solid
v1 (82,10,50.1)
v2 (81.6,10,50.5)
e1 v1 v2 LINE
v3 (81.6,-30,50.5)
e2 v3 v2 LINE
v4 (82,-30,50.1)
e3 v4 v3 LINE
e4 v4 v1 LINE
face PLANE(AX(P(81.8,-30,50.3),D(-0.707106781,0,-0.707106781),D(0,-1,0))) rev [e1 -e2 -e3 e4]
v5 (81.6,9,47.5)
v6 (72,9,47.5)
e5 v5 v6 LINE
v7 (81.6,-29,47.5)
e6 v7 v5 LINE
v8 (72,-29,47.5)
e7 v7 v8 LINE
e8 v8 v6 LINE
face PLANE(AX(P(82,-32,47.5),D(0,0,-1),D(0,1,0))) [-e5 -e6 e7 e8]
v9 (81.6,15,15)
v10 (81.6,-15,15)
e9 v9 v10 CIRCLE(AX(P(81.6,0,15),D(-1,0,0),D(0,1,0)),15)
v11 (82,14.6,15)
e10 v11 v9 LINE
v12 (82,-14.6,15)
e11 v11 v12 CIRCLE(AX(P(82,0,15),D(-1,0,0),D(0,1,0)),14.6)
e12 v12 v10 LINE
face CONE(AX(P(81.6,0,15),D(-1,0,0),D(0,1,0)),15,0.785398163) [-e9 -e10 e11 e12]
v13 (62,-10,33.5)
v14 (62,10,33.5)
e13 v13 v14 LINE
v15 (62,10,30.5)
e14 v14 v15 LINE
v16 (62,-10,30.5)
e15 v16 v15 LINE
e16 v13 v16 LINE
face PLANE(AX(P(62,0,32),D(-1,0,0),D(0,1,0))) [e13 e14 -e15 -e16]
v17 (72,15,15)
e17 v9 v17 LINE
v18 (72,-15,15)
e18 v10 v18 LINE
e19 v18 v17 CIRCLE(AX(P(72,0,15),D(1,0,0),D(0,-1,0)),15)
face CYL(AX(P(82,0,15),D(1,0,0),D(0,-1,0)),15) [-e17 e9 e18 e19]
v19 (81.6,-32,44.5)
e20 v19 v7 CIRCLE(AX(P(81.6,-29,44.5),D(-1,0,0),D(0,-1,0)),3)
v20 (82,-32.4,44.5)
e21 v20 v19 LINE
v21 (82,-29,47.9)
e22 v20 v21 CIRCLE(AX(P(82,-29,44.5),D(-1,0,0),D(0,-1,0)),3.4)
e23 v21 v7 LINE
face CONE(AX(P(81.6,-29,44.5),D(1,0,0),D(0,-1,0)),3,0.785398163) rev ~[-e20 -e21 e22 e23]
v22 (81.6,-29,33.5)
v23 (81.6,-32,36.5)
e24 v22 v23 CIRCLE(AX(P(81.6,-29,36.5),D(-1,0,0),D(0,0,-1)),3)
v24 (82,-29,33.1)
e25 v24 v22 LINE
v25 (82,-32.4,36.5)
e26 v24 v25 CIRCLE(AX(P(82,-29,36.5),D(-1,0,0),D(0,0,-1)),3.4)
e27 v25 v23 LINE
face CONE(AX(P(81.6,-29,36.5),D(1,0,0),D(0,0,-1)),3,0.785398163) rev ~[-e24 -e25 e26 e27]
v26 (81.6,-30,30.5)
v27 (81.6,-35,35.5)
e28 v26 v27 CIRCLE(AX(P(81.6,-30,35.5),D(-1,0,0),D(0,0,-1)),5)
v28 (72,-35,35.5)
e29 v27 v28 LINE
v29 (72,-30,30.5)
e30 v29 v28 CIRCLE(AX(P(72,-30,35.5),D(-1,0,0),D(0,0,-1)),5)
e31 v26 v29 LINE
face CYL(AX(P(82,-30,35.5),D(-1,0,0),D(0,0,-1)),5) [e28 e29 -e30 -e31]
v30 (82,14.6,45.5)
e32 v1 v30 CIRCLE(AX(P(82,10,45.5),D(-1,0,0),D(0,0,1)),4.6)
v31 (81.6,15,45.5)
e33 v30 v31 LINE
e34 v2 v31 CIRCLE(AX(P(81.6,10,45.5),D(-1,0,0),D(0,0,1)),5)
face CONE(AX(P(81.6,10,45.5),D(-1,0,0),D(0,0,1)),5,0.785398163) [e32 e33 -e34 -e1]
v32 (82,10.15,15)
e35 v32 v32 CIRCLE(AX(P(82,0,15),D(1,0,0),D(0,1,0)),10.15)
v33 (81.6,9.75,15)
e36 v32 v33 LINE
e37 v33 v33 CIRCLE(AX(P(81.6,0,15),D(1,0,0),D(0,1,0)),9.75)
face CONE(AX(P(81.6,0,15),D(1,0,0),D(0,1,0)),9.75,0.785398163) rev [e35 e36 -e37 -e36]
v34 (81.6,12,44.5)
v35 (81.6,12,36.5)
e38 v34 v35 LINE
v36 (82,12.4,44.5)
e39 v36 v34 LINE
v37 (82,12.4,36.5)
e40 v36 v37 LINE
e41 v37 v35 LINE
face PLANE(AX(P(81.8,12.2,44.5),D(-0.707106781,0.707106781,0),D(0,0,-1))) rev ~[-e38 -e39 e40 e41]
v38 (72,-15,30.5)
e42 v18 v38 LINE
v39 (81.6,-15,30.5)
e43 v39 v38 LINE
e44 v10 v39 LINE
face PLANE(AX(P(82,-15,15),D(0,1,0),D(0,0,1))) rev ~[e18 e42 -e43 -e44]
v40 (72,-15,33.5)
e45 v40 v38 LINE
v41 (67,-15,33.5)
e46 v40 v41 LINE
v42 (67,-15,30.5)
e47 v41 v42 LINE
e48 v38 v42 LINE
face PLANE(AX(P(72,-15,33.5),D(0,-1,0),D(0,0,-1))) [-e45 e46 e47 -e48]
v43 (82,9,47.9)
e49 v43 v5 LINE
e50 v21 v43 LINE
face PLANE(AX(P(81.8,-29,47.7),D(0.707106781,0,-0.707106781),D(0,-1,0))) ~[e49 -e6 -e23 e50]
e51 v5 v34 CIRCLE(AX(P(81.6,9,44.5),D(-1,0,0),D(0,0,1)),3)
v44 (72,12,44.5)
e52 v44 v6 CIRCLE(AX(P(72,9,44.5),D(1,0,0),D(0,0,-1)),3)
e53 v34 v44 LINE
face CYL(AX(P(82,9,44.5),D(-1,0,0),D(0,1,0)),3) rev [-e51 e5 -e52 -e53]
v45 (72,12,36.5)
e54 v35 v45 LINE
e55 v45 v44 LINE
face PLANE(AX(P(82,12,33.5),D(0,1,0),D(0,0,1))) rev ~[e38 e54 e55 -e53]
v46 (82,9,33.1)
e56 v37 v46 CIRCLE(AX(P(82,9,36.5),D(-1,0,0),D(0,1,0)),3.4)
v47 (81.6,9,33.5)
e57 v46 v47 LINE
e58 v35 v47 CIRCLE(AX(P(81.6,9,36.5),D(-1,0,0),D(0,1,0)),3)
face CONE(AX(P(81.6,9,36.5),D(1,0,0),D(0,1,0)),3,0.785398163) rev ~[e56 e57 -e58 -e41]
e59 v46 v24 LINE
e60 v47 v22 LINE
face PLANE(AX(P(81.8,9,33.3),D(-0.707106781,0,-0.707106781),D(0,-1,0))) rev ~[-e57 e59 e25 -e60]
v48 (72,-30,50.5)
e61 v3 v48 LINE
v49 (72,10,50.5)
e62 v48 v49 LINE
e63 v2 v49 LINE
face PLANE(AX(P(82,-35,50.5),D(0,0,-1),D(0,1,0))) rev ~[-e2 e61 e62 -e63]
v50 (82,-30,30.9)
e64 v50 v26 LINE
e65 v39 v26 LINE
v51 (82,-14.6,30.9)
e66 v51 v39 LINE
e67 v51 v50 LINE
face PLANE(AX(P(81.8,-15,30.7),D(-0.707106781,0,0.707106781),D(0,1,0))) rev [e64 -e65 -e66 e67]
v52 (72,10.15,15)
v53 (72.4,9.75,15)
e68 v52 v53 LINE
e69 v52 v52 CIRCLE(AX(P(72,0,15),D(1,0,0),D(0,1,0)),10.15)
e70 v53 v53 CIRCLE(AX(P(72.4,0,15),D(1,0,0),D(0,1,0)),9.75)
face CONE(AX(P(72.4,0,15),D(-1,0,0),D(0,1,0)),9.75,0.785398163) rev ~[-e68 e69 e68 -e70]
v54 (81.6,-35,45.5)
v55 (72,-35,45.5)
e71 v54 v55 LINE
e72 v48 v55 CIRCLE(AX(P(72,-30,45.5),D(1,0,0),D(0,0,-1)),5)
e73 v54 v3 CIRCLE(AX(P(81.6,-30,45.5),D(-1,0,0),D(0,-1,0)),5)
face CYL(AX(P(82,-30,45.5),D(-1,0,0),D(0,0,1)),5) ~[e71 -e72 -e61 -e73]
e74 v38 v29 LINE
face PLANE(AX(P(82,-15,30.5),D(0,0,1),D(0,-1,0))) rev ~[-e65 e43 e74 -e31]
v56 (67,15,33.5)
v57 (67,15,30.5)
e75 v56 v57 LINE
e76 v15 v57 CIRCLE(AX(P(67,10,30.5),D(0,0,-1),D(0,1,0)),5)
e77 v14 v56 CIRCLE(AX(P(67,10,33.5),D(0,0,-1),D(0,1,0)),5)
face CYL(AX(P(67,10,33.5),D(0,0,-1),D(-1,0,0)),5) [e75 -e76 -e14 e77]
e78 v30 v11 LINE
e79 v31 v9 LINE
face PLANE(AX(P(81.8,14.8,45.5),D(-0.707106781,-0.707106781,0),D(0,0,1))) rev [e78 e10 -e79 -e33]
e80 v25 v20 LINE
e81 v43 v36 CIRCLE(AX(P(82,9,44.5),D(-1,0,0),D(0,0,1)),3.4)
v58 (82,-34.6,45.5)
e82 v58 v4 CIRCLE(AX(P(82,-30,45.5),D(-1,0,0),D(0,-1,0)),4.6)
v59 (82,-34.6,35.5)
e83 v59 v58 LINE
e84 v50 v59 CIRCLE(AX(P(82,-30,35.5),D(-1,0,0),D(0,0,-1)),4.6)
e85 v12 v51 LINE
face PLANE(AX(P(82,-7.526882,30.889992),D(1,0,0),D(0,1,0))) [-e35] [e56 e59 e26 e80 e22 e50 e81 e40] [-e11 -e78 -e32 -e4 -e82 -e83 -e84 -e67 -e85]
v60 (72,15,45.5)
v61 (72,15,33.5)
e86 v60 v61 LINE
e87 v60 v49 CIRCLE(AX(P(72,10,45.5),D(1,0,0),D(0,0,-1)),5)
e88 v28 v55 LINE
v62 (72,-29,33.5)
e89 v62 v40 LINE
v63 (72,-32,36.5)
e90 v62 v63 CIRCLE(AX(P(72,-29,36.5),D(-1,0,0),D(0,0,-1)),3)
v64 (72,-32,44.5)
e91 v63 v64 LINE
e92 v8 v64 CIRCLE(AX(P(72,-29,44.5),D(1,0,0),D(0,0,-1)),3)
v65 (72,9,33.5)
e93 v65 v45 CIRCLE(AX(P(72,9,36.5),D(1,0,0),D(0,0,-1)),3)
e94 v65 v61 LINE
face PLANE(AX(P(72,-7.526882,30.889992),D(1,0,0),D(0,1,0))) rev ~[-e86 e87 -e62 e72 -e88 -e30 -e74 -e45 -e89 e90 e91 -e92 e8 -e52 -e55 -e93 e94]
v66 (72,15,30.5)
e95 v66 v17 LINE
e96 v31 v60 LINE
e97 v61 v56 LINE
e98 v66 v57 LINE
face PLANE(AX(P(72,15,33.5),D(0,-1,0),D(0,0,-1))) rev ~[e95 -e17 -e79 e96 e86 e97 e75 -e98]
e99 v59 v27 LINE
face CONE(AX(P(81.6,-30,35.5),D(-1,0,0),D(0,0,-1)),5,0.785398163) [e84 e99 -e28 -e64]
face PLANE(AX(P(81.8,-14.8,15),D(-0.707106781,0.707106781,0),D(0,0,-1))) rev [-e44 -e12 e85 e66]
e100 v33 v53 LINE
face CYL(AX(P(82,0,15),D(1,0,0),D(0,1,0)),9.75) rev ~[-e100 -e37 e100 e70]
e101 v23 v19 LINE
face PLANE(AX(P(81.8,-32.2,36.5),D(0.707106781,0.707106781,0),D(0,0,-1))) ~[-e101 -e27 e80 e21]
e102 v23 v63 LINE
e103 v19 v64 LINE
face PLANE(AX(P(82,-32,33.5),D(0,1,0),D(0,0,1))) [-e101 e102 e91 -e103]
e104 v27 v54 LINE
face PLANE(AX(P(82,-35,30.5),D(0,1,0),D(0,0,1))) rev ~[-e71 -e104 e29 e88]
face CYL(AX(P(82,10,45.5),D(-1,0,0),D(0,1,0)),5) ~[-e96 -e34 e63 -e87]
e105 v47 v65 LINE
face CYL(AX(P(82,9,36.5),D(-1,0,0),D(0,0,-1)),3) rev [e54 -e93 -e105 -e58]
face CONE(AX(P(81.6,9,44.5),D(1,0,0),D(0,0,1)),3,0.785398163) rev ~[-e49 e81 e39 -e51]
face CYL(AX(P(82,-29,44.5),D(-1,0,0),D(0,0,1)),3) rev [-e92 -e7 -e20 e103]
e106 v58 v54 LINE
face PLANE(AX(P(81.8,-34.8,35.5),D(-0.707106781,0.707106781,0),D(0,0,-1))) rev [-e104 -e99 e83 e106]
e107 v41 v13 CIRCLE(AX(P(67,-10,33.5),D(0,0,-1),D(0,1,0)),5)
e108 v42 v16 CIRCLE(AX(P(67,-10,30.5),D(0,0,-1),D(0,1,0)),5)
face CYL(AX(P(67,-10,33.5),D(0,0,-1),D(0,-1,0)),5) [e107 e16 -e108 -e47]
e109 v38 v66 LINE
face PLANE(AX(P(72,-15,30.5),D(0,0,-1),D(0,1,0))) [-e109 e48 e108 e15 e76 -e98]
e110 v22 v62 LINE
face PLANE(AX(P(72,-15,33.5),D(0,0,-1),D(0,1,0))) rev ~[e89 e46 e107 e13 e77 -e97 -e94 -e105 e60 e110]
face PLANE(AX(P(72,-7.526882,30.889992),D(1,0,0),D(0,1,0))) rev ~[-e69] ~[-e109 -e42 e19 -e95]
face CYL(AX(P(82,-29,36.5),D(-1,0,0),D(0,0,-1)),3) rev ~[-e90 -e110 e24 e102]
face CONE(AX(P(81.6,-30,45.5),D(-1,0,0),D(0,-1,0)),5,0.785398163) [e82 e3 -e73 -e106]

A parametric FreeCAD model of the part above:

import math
import FreeCAD as App
import Part
import Sketcher
Q = App.Units.Quantity


def edges_at(feature, points):
    """Names of the edges that pass closest to the given points."""
    edges = feature.Shape.Edges
    near = lambda p: min(range(len(edges)), key=lambda i: edges[i].distToShape(Part.Vertex(*p))[0])
    return sorted({f"Edge{near(p) + 1}" for p in points})


def add_polygon(sketch, points):
    """Adds a closed chain of lines whose ends are joined by coincident constraints."""
    first, n = sketch.GeometryCount, len(points)
    for a, b in zip(points, points[1:] + points[:1]):
        sketch.addGeometry(Part.LineSegment(App.Vector(*a, 0), App.Vector(*b, 0)), False)
    for i in range(n):
        sketch.addConstraint(Sketcher.Constraint("Coincident", first + i, 2, first + (i + 1) % n, 1))

doc = App.newDocument("Part")
body = doc.addObject("PartDesign::Body", "Body")

# Sketch on YZ plane
sketch1 = body.newObject("Sketcher::SketchObject", "Sketch")
sketch1.AttachmentSupport = (doc.getObject("YZ_Plane"), [""])
sketch1.MapMode = "FlatFace"
sketch1.addGeometry(Part.ArcOfCircle(Part.Circle(App.Vector(0, 15, 0), App.Vector(0, 0, 1), 15), math.radians(180), math.radians(360)), False)  # 0
sketch1.addGeometry(Part.LineSegment(App.Vector(15, 15, 0), App.Vector(15, 50, 0)), False)  # 1
sketch1.addGeometry(Part.LineSegment(App.Vector(15, 50, 0), App.Vector(-35, 50, 0)), False)  # 2
sketch1.addGeometry(Part.LineSegment(App.Vector(-35, 50, 0), App.Vector(-35, 30, 0)), False)  # 3
sketch1.addGeometry(Part.LineSegment(App.Vector(-35, 30, 0), App.Vector(-15, 30, 0)), False)  # 4
sketch1.addGeometry(Part.LineSegment(App.Vector(-15, 30, 0), App.Vector(-15, 15, 0)), False)  # 5
sketch1.addGeometry(Part.Circle(App.Vector(0, 15, 0), App.Vector(0, 0, 1), 10), False)  # 6
add_polygon(sketch1, [(12, 34), (-32, 34), (-32, 48), (12, 48)])  # lines 7-10
sketch1.addConstraint(Sketcher.Constraint("Tangent", 0, 2, 1, 1))
sketch1.addConstraint(Sketcher.Constraint("Coincident", 1, 2, 2, 1))
sketch1.addConstraint(Sketcher.Constraint("Coincident", 2, 2, 3, 1))
sketch1.addConstraint(Sketcher.Constraint("Coincident", 3, 2, 4, 1))
sketch1.addConstraint(Sketcher.Constraint("Coincident", 4, 2, 5, 1))
sketch1.addConstraint(Sketcher.Constraint("Tangent", 5, 2, 0, 1))
sketch1.addConstraint(Sketcher.Constraint("Vertical", 1))
sketch1.addConstraint(Sketcher.Constraint("Horizontal", 2))
sketch1.addConstraint(Sketcher.Constraint("Vertical", 3))
sketch1.addConstraint(Sketcher.Constraint("Horizontal", 4))
sketch1.addConstraint(Sketcher.Constraint("Vertical", 5))
sketch1.addConstraint(Sketcher.Constraint("Horizontal", 7))
sketch1.addConstraint(Sketcher.Constraint("Vertical", 8))
sketch1.addConstraint(Sketcher.Constraint("Horizontal", 9))
sketch1.addConstraint(Sketcher.Constraint("Vertical", 10))
sketch1.addConstraint(Sketcher.Constraint("Coincident", 6, 3, 0, 3))
sketch1.addConstraint(Sketcher.Constraint("PointOnObject", 0, 3, -2))
sketch1.addConstraint(Sketcher.Constraint("Equal", 4, 3))
sketch1.addConstraint(Sketcher.Constraint("Radius", 0, Q("15 mm")))
sketch1.addConstraint(Sketcher.Constraint("Diameter", 6, Q("19.5 mm")))
sketch1.addConstraint(Sketcher.Constraint("DistanceX", 2, 2, 2, 1, Q("50 mm")))
sketch1.addConstraint(Sketcher.Constraint("DistanceX", 7, 2, 7, 1, Q("44 mm")))
sketch1.addConstraint(Sketcher.Constraint("DistanceY", 8, 1, 8, 2, Q("14 mm")))
sketch1.addConstraint(Sketcher.Constraint("DistanceY", 1, 1, 1, 2, Q("35.5 mm")))
sketch1.addConstraint(Sketcher.Constraint("DistanceY", -1, 1, 0, 3, Q("15 mm")))
sketch1.addConstraint(Sketcher.Constraint("DistanceX", 7, 2, -1, 1, Q("32 mm")))
sketch1.addConstraint(Sketcher.Constraint("DistanceY", 3, 2, 7, 2, Q("3 mm")))
pad1 = body.newObject("PartDesign::Pad", "Pad")
pad1.Profile = sketch1
pad1.Length = 10
pad1.Reversed = True
doc.recompute()

fillet = body.newObject("PartDesign::Fillet", "Fillet")
fillet.Base = (pad1, edges_at(pad1, [
    (-5, -32, 47.5),
    (-5, 12, 47.5),
    (-5, 12, 33.5),
    (-5, -32, 33.5),
]))
fillet.Radius = 3
doc.recompute()

fillet2 = body.newObject("PartDesign::Fillet", "Fillet001")
fillet2.Base = (fillet, edges_at(fillet, [(-5, 15, 50.5), (-5, -35, 50.5), (-5, -35, 30.5)]))
fillet2.Radius = 5

# Sketch on YZ plane
sketch2 = body.newObject("Sketcher::SketchObject", "Sketch001")
sketch2.AttachmentSupport = (doc.getObject("YZ_Plane"), [""])
sketch2.MapMode = "FlatFace"
sketch2.AttachmentOffset = App.Placement(App.Vector(0, 0, -10), App.Rotation())
add_polygon(sketch2, [(-15, 30.5), (-15, 33.5), (15, 33.5), (15, 30.5)])  # lines 0-3
sketch2.addConstraint(Sketcher.Constraint("Vertical", 0))
sketch2.addConstraint(Sketcher.Constraint("Horizontal", 1))
sketch2.addConstraint(Sketcher.Constraint("Vertical", 2))
sketch2.addConstraint(Sketcher.Constraint("Horizontal", 3))
sketch2.addConstraint(Sketcher.Constraint("DistanceX", 1, 1, 1, 2, Q("30 mm")))
sketch2.addConstraint(Sketcher.Constraint("DistanceY", 0, 1, 0, 2, Q("3 mm")))
sketch2.addConstraint(Sketcher.Constraint("DistanceX", 0, 2, -1, 1, Q("15 mm")))
sketch2.addConstraint(Sketcher.Constraint("DistanceY", -1, 1, 0, 2, Q("33.5 mm")))
pad2 = body.newObject("PartDesign::Pad", "Pad001")
pad2.Profile = sketch2
pad2.Length = 10
pad2.Reversed = True
doc.recompute()

fillet3 = body.newObject("PartDesign::Fillet", "Fillet002")
fillet3.Base = (pad2, edges_at(pad2, [(-20, 15, 32), (-20, -15, 32)]))
fillet3.Radius = 5
doc.recompute()

chamfer = body.newObject("PartDesign::Chamfer", "Chamfer")
chamfer.Base = (fillet3, edges_at(fillet3, [
    (0, 15, 30.25),
    (0, 13.536, 49.036),
    (0, 0, 0),
    (0, -10, 50.5),
    (0, -15, 22.75),
    (0, -33.536, 49.036),
    (0, -22.5, 30.5),
    (0, -35, 40.5),
    (0, -33.536, 31.964),
    (0, -10, 47.5),
    (0, -31.121, 46.621),
    (0, 11.121, 46.621),
    (0, -32, 40.5),
    (0, 12, 40.5),
    (0, -31.121, 34.379),
    (0, 11.121, 34.379),
    (0, -10, 33.5),
    (0, -9.75, 15),
    (-10, -9.75, 15),
]))
chamfer.Size = 0.4
body2 = doc.addObject("PartDesign::Body", "Body001")
doc.recompute()

body.Placement = App.Placement(App.Vector(82, 0, 0), App.Rotation(App.Vector(0, 0, 1), 0))
boolean = body2.newObject("PartDesign::Boolean", "Boolean")
boolean.Type = "Fuse"
boolean.addObjects([body])

doc.recompute()
